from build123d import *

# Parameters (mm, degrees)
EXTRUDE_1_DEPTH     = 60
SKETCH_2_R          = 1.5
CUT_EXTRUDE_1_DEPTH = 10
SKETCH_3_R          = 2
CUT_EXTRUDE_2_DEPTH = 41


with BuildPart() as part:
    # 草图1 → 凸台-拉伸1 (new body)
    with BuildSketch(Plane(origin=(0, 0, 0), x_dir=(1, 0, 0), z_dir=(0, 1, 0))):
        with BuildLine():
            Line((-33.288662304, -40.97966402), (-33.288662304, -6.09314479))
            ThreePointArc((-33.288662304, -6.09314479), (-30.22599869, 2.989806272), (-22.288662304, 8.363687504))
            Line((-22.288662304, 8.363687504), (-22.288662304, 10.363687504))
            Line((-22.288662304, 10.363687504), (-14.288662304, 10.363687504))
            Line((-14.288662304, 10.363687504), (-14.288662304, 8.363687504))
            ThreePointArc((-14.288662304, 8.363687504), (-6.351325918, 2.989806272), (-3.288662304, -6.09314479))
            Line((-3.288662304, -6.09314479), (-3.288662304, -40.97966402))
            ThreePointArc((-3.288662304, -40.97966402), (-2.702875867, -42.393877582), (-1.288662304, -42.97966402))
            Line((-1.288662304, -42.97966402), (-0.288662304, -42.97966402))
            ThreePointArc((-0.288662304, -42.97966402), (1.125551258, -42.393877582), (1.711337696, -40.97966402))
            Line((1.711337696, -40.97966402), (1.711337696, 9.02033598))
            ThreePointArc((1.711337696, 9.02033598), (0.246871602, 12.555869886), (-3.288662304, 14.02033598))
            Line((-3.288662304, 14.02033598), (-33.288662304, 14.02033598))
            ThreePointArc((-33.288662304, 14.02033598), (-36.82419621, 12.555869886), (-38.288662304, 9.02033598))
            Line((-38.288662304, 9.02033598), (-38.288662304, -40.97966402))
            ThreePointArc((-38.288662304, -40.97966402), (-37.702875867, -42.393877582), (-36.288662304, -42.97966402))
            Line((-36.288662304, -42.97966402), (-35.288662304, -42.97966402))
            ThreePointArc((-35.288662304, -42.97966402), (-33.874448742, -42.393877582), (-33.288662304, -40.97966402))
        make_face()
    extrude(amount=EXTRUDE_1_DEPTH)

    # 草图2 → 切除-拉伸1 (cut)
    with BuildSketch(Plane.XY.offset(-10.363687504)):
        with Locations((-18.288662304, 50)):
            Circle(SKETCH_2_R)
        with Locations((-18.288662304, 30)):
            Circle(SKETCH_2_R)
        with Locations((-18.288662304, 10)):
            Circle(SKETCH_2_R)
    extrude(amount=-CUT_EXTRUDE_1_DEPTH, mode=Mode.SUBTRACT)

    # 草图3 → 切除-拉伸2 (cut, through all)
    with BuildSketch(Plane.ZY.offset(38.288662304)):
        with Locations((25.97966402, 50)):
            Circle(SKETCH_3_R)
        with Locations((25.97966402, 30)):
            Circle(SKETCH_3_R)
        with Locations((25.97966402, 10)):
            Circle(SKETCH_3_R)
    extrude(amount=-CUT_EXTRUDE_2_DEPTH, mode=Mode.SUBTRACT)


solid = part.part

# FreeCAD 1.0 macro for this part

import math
import FreeCAD as App
import Part
import Sketcher

doc = App.newDocument("Part")
params = doc.addObject("Spreadsheet::Sheet", "Params")
for row, (alias, value) in enumerate([
    ("sketch1_radius", "15 mm"),
    ("sketch1_radius2", "2 mm"),
    ("sketch1_radius3", "5 mm"),
    ("sketch1_width", "8 mm"),
    ("sketch1_height", "2 mm"),
    ("pad1_length", "60 mm"),
    ("sketch2_diameter", "3 mm"),
    ("pocket1_length", "10 mm"),
    ("sketch3_diameter", "4 mm"),
], start=1):
    params.set(f"A{row}", alias)
    params.set(f"B{row}", "=" + value)
    params.setAlias(f"B{row}", alias)

body = doc.addObject("PartDesign::Body", "Body")

sketch1 = doc.addObject("Sketcher::SketchObject", "Sketch")
body.addObject(sketch1)
sketch1.AttachmentSupport = (doc.XZ_Plane, [""])
sketch1.MapMode = "FlatFace"
sketch1.addGeometry([
    Part.LineSegment(App.Vector(-33.3, 41, 0), App.Vector(-33.3, 6.1, 0)),
    Part.ArcOfCircle(Part.Circle(App.Vector(-18.3, 6.1, 0), App.Vector(0, 0, 1), 15), math.radians(-180), math.radians(-105)),
    Part.LineSegment(App.Vector(-22.3, -8.4, 0), App.Vector(-22.3, -10.4, 0)),
    Part.LineSegment(App.Vector(-22.3, -10.4, 0), App.Vector(-14.3, -10.4, 0)),
    Part.LineSegment(App.Vector(-14.3, -10.4, 0), App.Vector(-14.3, -8.4, 0)),
    Part.ArcOfCircle(Part.Circle(App.Vector(-18.3, 6.1, 0), App.Vector(0, 0, 1), 15), math.radians(-75), math.radians(0)),
    Part.LineSegment(App.Vector(-3.3, 6.1, 0), App.Vector(-3.3, 41, 0)),
    Part.ArcOfCircle(Part.Circle(App.Vector(-1.3, 41, 0), App.Vector(0, 0, 1), 2), math.radians(90), math.radians(180)),
    Part.LineSegment(App.Vector(-1.3, 43, 0), App.Vector(-0.3, 43, 0)),
    Part.ArcOfCircle(Part.Circle(App.Vector(-0.3, 41, 0), App.Vector(0, 0, 1), 2), math.radians(0), math.radians(90)),
    Part.LineSegment(App.Vector(1.7, 41, 0), App.Vector(1.7, -9, 0)),
    Part.ArcOfCircle(Part.Circle(App.Vector(-3.3, -9, 0), App.Vector(0, 0, 1), 5), math.radians(-90), math.radians(0)),
    Part.LineSegment(App.Vector(-3.3, -14, 0), App.Vector(-33.3, -14, 0)),
    Part.ArcOfCircle(Part.Circle(App.Vector(-33.3, -9, 0), App.Vector(0, 0, 1), 5), math.radians(180), math.radians(270)),
    Part.LineSegment(App.Vector(-38.3, -9, 0), App.Vector(-38.3, 41, 0)),
    Part.ArcOfCircle(Part.Circle(App.Vector(-36.3, 41, 0), App.Vector(0, 0, 1), 2), math.radians(90), math.radians(180)),
    Part.LineSegment(App.Vector(-36.3, 43, 0), App.Vector(-35.3, 43, 0)),
    Part.ArcOfCircle(Part.Circle(App.Vector(-35.3, 41, 0), App.Vector(0, 0, 1), 2), math.radians(0), math.radians(90)),
], False)
sketch1.addConstraint([
    Sketcher.Constraint("Tangent", 0, 2, 1, 1),
    Sketcher.Constraint("Coincident", 1, 2, 2, 1),
    Sketcher.Constraint("Coincident", 2, 2, 3, 1),
    Sketcher.Constraint("Coincident", 3, 2, 4, 1),
    Sketcher.Constraint("Coincident", 4, 2, 5, 1),
    Sketcher.Constraint("Tangent", 5, 2, 6, 1),
    Sketcher.Constraint("Tangent", 6, 2, 7, 2),
    Sketcher.Constraint("Tangent", 7, 1, 8, 1),
    Sketcher.Constraint("Tangent", 8, 2, 9, 2),
    Sketcher.Constraint("Tangent", 9, 1, 10, 1),
    Sketcher.Constraint("Tangent", 10, 2, 11, 2),
    Sketcher.Constraint("Tangent", 11, 1, 12, 1),
    Sketcher.Constraint("Tangent", 12, 2, 13, 2),
    Sketcher.Constraint("Tangent", 13, 1, 14, 1),
    Sketcher.Constraint("Tangent", 14, 2, 15, 2),
    Sketcher.Constraint("Tangent", 15, 1, 16, 1),
    Sketcher.Constraint("Tangent", 16, 2, 17, 2),
    Sketcher.Constraint("Tangent", 17, 1, 0, 1),
    Sketcher.Constraint("Vertical", 0),
    Sketcher.Constraint("Vertical", 2),
    Sketcher.Constraint("Horizontal", 3),
    Sketcher.Constraint("Vertical", 4),
    Sketcher.Constraint("Vertical", 6),
    Sketcher.Constraint("Horizontal", 8),
    Sketcher.Constraint("Vertical", 10),
    Sketcher.Constraint("Horizontal", 12),
    Sketcher.Constraint("Vertical", 14),
    Sketcher.Constraint("Horizontal", 16),
    Sketcher.Constraint("Coincident", 5, 3, 1, 3),
    Sketcher.Constraint("Equal", 1, 5),
    Sketcher.Constraint("Equal", 7, 9),
    Sketcher.Constraint("Equal", 11, 13),
    Sketcher.Constraint("Equal", 9, 15),
    Sketcher.Constraint("Equal", 15, 17),
    Sketcher.Constraint("Horizontal", 9, 3, 15, 3),
    Sketcher.Constraint("Horizontal", 1, 2, 4, 2),
    Sketcher.Constraint("Vertical", 13, 3, 0, 2),
    Sketcher.Constraint("Vertical", 11, 3, 5, 2),
    Sketcher.Constraint("Radius", 1, 15.0),
    Sketcher.Constraint("Radius", 7, 2.0),
    Sketcher.Constraint("Radius", 11, 5.0),
    Sketcher.Constraint("DistanceX", 3, 1, 3, 2, 8.0),
    Sketcher.Constraint("DistanceY", 2, 2, 2, 1, 2.0),
    Sketcher.Constraint("DistanceY", 10, 2, 10, 1, 50.0),
    Sketcher.Constraint("DistanceY", 0, 2, 0, 1, 34.886519),
    Sketcher.Constraint("DistanceX", 1, 3, -1, 1, 18.288662),
    Sketcher.Constraint("DistanceY", -1, 1, 1, 3, 6.093145),
])
sketch1.setExpression("Constraints[38]", "Params.sketch1_radius")
sketch1.setExpression("Constraints[39]", "Params.sketch1_radius2")
sketch1.setExpression("Constraints[40]", "Params.sketch1_radius3")
sketch1.setExpression("Constraints[41]", "Params.sketch1_width")
sketch1.setExpression("Constraints[42]", "Params.sketch1_height")
pad1 = doc.addObject("PartDesign::Pad", "Pad")
body.addObject(pad1)
pad1.Profile = sketch1
pad1.setExpression("Length", "Params.pad1_length")
pad1.Reversed = True

sketch2 = doc.addObject("Sketcher::SketchObject", "Sketch001")
body.addObject(sketch2)
sketch2.AttachmentSupport = (doc.XY_Plane, [""])
sketch2.MapMode = "FlatFace"
sketch2.AttachmentOffset = App.Placement(App.Vector(0, 0, -10.363688), App.Rotation())
sketch2.addGeometry([
    Part.Circle(App.Vector(-18.3, 50, 0), App.Vector(0, 0, 1), 1.5),
    Part.Circle(App.Vector(-18.3, 30, 0), App.Vector(0, 0, 1), 1.5),
    Part.Circle(App.Vector(-18.3, 10, 0), App.Vector(0, 0, 1), 1.5),
], False)
sketch2.addConstraint([
    Sketcher.Constraint("Equal", 0, 1),
    Sketcher.Constraint("Equal", 1, 2),
    Sketcher.Constraint("Vertical", 0, 3, 1, 3),
    Sketcher.Constraint("Vertical", 1, 3, 2, 3),
    Sketcher.Constraint("Diameter", 0, 3.0),
    Sketcher.Constraint("DistanceY", -1, 1, 0, 3, 50.0),
    Sketcher.Constraint("DistanceY", -1, 1, 1, 3, 30.0),
    Sketcher.Constraint("DistanceY", -1, 1, 2, 3, 10.0),
    Sketcher.Constraint("DistanceX", 0, 3, -1, 1, 18.288662),
])
sketch2.setExpression("Constraints[4]", "Params.sketch2_diameter")
pocket1 = doc.addObject("PartDesign::Pocket", "Pocket")
body.addObject(pocket1)
pocket1.Profile = sketch2
pocket1.setExpression("Length", "Params.pocket1_length")

sketch3 = doc.addObject("Sketcher::SketchObject", "Sketch002")
body.addObject(sketch3)
sketch3.AttachmentSupport = (doc.YZ_Plane, [""])
sketch3.MapMode = "FlatFace"
sketch3.AttachmentOffset = App.Placement(App.Vector(0, 0, -38.288662), App.Rotation())
sketch3.addGeometry([
    Part.Circle(App.Vector(50, 26, 0), App.Vector(0, 0, 1), 2),
    Part.Circle(App.Vector(30, 26, 0), App.Vector(0, 0, 1), 2),
    Part.Circle(App.Vector(10, 26, 0), App.Vector(0, 0, 1), 2),
], False)
sketch3.addConstraint([
    Sketcher.Constraint("Equal", 0, 1),
    Sketcher.Constraint("Equal", 1, 2),
    Sketcher.Constraint("Horizontal", 0, 3, 1, 3),
    Sketcher.Constraint("Horizontal", 1, 3, 2, 3),
    Sketcher.Constraint("Diameter", 0, 4.0),
    Sketcher.Constraint("DistanceX", -1, 1, 0, 3, 50.0),
    Sketcher.Constraint("DistanceX", -1, 1, 1, 3, 30.0),
    Sketcher.Constraint("DistanceX", -1, 1, 2, 3, 10.0),
    Sketcher.Constraint("DistanceY", -1, 1, 0, 3, 25.979664),
])
sketch3.setExpression("Constraints[4]", "Params.sketch3_diameter")
pocket2 = doc.addObject("PartDesign::Pocket", "Pocket001")
body.addObject(pocket2)
pocket2.Profile = sketch3
pocket2.Type = "ThroughAll"
pocket2.Reversed = True

doc.recompute()
